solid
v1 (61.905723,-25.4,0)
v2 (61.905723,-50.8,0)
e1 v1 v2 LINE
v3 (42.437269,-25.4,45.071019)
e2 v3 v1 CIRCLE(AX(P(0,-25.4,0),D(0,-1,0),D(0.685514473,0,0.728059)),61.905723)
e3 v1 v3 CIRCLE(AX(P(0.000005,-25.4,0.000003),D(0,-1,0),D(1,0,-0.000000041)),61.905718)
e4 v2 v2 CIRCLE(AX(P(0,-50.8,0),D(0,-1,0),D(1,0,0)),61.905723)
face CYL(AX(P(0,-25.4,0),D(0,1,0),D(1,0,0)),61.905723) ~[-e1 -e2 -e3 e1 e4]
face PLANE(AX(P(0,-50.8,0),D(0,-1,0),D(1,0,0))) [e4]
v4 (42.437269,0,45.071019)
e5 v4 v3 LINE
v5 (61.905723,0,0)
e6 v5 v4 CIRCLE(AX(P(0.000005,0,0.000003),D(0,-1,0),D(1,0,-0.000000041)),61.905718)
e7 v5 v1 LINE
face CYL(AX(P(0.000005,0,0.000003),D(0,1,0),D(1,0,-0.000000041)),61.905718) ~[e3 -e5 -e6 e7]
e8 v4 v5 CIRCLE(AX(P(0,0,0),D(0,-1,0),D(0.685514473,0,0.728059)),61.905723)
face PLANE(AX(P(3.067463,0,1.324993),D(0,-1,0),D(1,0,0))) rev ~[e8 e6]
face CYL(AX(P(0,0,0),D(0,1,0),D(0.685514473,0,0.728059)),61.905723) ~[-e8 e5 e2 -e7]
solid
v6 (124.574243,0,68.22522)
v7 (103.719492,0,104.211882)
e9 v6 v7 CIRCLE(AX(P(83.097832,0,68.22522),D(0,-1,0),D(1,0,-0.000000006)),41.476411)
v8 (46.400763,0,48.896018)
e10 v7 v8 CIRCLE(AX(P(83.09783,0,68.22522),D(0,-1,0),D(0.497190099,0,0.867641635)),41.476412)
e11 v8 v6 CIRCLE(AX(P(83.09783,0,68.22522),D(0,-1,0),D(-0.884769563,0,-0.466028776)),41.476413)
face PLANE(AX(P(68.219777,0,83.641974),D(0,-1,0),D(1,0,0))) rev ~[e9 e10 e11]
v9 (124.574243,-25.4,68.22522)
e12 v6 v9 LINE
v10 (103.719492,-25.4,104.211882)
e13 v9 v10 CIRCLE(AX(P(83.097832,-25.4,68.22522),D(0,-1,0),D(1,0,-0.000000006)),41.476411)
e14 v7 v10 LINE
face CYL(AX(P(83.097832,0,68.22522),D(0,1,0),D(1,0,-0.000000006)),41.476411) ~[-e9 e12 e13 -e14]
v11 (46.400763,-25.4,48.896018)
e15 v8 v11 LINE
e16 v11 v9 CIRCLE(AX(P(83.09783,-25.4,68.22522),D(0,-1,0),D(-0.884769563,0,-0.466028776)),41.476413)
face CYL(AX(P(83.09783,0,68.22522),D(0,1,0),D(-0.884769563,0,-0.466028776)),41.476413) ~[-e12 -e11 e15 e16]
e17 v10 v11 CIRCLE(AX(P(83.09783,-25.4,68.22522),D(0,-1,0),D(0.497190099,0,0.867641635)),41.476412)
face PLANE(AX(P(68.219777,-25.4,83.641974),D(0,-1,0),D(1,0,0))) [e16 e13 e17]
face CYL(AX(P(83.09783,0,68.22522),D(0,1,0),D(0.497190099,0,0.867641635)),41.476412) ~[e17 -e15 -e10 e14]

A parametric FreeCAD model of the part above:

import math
import FreeCAD as App
import Part
import Sketcher
Q = App.Units.Quantity

doc = App.newDocument("Part")
body = doc.addObject("PartDesign::Body", "Body")
body.AllowCompound = True

# Sketch on XZ plane
sketch1 = body.newObject("Sketcher::SketchObject", "Sketch")
sketch1.AttachmentSupport = (doc.getObject("XZ_Plane"), [""])
sketch1.MapMode = "FlatFace"
sketch1.addGeometry(Part.ArcOfCircle(Part.Circle(App.Vector(0, 0, 0), App.Vector(0, 0, 1), 62), math.radians(47), math.radians(360)), False)
sketch1.addGeometry(Part.ArcOfCircle(Part.Circle(App.Vector(0, 0, 0), App.Vector(0, 0, 1), 62), math.radians(0), math.radians(47)), False)
sketch1.addGeometry(Part.ArcOfCircle(Part.Circle(App.Vector(83, 68, 0), App.Vector(0, 0, 1), 41), math.radians(60), math.radians(208)), False)
sketch1.addGeometry(Part.ArcOfCircle(Part.Circle(App.Vector(83, 68, 0), App.Vector(0, 0, 1), 41), math.radians(-152), math.radians(0)), False)
sketch1.addGeometry(Part.ArcOfCircle(Part.Circle(App.Vector(83, 68, 0), App.Vector(0, 0, 1), 41), math.radians(0), math.radians(60)), False)
sketch1.addConstraint(Sketcher.Constraint("Tangent", 0, 1, 1, 2))
sketch1.addConstraint(Sketcher.Constraint("Coincident", 1, 1, 0, 2))
sketch1.addConstraint(Sketcher.Constraint("Tangent", 2, 2, 3, 1))
sketch1.addConstraint(Sketcher.Constraint("Tangent", 3, 2, 4, 1))
sketch1.addConstraint(Sketcher.Constraint("Tangent", 4, 2, 2, 1))
sketch1.addConstraint(Sketcher.Constraint("Coincident", 0, 3, -1, 1))
sketch1.addConstraint(Sketcher.Constraint("PointOnObject", 1, 1, -1))
sketch1.addConstraint(Sketcher.Constraint("Horizontal", 4, 3, 3, 2))
sketch1.addConstraint(Sketcher.Constraint("Radius", 4, 41.476411))
sketch1.addConstraint(Sketcher.Constraint("Radius", 0, 61.905723))
sketch1.addConstraint(Sketcher.Constraint("DistanceY", 0, 1, 2, 3, 23.154201))
sketch1.addConstraint(Sketcher.Constraint("DistanceY", 0, 1, 2, 2, 3.824999))
sketch1.addConstraint(Sketcher.Constraint("DistanceX", -1, 1, 2, 3, 83.09783))
sketch1.addConstraint(Sketcher.Constraint("DistanceY", -1, 1, 2, 3, 68.22522))
sketch1.addConstraint(Sketcher.Constraint("DistanceX", 4, 3, 4, 2, 20.62166))
pad1 = body.newObject("PartDesign::Pad", "Pad")
pad1.Profile = sketch1
pad1.Length = Q("1 in")

# Sketch on XZ plane
sketch2 = body.newObject("Sketcher::SketchObject", "Sketch001")
sketch2.AttachmentSupport = (doc.getObject("XZ_Plane"), [""])
sketch2.MapMode = "FlatFace"
sketch2.AttachmentOffset = App.Placement(App.Vector(0, 0, 1 * 25.4), App.Rotation())
sketch2.addGeometry(Part.Circle(App.Vector(0, 0, 0), App.Vector(0, 0, 1), 62), False)
sketch2.addConstraint(Sketcher.Constraint("Coincident", 0, 3, -1, 1))
sketch2.addConstraint(Sketcher.Constraint("Diameter", 0, 123.811446))
pad2 = body.newObject("PartDesign::Pad", "Pad001")
pad2.Profile = sketch2
pad2.Length = Q("1 in")

doc.recompute()
